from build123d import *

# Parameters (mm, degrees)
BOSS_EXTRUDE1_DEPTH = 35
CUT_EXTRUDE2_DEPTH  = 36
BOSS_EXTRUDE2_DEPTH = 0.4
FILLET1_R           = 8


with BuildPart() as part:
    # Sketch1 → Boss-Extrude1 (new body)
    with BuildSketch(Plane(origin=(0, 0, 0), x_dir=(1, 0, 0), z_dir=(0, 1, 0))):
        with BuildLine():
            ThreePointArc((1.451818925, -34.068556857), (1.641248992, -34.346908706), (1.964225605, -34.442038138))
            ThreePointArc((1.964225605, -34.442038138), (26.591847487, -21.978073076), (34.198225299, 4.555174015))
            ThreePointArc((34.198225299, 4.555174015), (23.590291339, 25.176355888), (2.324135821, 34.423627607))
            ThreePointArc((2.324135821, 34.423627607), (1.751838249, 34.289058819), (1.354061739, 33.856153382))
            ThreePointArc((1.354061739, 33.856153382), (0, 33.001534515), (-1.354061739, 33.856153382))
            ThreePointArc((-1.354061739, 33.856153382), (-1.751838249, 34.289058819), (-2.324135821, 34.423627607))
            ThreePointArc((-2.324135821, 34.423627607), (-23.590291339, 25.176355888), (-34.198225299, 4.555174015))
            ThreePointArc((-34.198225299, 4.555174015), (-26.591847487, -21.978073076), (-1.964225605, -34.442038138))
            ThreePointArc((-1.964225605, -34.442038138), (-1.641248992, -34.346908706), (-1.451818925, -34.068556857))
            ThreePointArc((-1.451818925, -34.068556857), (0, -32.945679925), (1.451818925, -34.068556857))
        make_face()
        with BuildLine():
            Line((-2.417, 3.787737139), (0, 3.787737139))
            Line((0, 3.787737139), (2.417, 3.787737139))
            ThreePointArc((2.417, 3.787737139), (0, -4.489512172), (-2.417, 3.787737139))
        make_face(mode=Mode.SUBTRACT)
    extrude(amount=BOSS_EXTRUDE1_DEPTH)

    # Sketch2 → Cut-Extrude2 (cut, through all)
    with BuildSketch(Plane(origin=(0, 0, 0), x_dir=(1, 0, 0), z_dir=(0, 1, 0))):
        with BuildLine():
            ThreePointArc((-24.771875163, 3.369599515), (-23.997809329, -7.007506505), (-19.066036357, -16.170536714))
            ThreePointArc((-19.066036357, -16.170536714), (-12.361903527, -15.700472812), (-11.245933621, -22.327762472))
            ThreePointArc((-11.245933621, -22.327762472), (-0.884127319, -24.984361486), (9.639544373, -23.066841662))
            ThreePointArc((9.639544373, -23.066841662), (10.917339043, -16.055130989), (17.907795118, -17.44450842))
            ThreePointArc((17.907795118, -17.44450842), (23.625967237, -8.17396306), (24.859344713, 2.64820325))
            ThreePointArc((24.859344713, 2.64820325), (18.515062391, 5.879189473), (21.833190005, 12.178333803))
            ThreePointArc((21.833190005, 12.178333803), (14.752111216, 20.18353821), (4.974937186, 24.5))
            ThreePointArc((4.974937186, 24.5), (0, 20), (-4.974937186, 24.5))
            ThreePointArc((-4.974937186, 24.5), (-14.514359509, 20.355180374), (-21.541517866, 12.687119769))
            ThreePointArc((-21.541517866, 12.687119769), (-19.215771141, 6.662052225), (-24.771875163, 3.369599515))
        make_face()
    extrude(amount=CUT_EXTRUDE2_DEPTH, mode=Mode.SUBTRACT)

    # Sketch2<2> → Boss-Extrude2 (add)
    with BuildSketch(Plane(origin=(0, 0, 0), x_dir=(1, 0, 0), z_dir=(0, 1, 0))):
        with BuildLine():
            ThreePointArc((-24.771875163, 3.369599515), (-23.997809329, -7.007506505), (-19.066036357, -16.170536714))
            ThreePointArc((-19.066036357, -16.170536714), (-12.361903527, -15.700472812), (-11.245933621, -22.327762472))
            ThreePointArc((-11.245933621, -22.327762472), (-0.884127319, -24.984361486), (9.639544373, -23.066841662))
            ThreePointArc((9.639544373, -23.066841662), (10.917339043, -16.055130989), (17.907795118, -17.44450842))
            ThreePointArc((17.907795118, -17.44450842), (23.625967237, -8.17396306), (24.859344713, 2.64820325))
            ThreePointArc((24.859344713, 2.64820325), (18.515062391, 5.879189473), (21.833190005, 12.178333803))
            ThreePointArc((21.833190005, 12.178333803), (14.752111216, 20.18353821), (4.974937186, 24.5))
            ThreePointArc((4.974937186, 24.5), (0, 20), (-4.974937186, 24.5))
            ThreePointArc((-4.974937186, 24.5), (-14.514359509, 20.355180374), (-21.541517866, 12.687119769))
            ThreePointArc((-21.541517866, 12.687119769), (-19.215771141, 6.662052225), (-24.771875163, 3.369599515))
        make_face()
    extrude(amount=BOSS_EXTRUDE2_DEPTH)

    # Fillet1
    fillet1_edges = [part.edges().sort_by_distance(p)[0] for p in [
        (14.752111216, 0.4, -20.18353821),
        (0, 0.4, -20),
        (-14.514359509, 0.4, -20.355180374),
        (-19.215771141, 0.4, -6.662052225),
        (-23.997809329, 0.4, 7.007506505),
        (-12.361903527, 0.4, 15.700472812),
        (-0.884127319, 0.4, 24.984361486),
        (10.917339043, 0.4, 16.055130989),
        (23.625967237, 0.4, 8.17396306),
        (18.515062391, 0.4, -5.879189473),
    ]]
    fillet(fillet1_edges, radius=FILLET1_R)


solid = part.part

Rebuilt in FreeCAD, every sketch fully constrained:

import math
import FreeCAD as App
import Part
import Sketcher
from FreeCAD import Vector
Q = App.Units.Quantity


def edges_at(feature, points):
    """Names of the edges that pass closest to the given points."""
    edges = feature.Shape.Edges
    near = lambda p: min(range(len(edges)), key=lambda i: edges[i].distToShape(Part.Vertex(*p))[0])
    return sorted({f"Edge{near(p) + 1}" for p in points})

doc = App.newDocument("Part")
body = doc.addObject("PartDesign::Body", "Body")

# Sketch on XZ plane
sketch1 = body.newObject("Sketcher::SketchObject", "Sketch")
sketch1.AttachmentSupport = (doc.getObject("XZ_Plane"), [""])
sketch1.MapMode = "FlatFace"
sketch1.addGeometry([
    Part.ArcOfCircle(Part.Circle(Vector(1.9, 33.9, 0), Vector(0, 0, 1), 0.5), math.radians(87), math.radians(165)),  # 0
    Part.ArcOfCircle(Part.Circle(Vector(0, 0, 0), Vector(0, 0, 1), 34.5), math.radians(-8), math.radians(87)),  # 1
    Part.ArcOfCircle(Part.Circle(Vector(0, 0, 0), Vector(0, 0, 1), 34.5), math.radians(-86), math.radians(-8)),  # 2
    Part.ArcOfCircle(Part.Circle(Vector(2.3, -33.4, 0), Vector(0, 0, 1), 1), math.radians(-155), math.radians(-86)),  # 3
    Part.ArcOfCircle(Part.Circle(Vector(0, -34.5, 0), Vector(0, 0, 1), 1.5), math.radians(25), math.radians(155)),  # 4
    Part.ArcOfCircle(Part.Circle(Vector(-2.3, -33.4, 0), Vector(0, 0, 1), 1), math.radians(-94), math.radians(-25)),  # 5
    Part.ArcOfCircle(Part.Circle(Vector(0, 0, 0), Vector(0, 0, 1), 34.5), math.radians(-172), math.radians(-94)),  # 6
    Part.ArcOfCircle(Part.Circle(Vector(0, 0, 0), Vector(0, 0, 1), 34.5), math.radians(93), math.radians(188)),  # 7
    Part.ArcOfCircle(Part.Circle(Vector(-1.9, 33.9, 0), Vector(0, 0, 1), 0.5), math.radians(15), math.radians(93)),  # 8
    Part.ArcOfCircle(Part.Circle(Vector(0, 34.4, 0), Vector(0, 0, 1), 1.5), math.radians(-165), math.radians(-15)),  # 9
    Part.ArcOfCircle(Part.Circle(Vector(0, 0, 0), Vector(0, 0, 1), 4.5), math.radians(-57), math.radians(237)),  # 10
    Part.LineSegment(Vector(-2.4, -3.8, 0), Vector(2.4, -3.8, 0)),  # 11
], False)
sketch1.addConstraint([
    Sketcher.Constraint("Tangent", 0, 1, 1, 2),
    Sketcher.Constraint("Tangent", 1, 1, 2, 2),
    Sketcher.Constraint("Tangent", 2, 1, 3, 2),
    Sketcher.Constraint("Tangent", 3, 1, 4, 1),
    Sketcher.Constraint("Tangent", 4, 2, 5, 2),
    Sketcher.Constraint("Tangent", 5, 1, 6, 2),
    Sketcher.Constraint("Tangent", 6, 1, 7, 2),
    Sketcher.Constraint("Tangent", 7, 1, 8, 2),
    Sketcher.Constraint("Tangent", 8, 1, 9, 1),
    Sketcher.Constraint("Tangent", 9, 2, 0, 2),
    Sketcher.Constraint("Coincident", 10, 1, 11, 2),
    Sketcher.Constraint("Coincident", 11, 1, 10, 2),
    Sketcher.Constraint("Horizontal", 11),
    Sketcher.Constraint("Coincident", 6, 3, 1, 3),
    Sketcher.Constraint("Coincident", 10, 3, 1, 3),
    Sketcher.Constraint("Equal", 1, 2),
    Sketcher.Constraint("Equal", 3, 5),
    Sketcher.Constraint("Equal", 2, 6),
    Sketcher.Constraint("Equal", 6, 7),
    Sketcher.Constraint("Equal", 0, 8),
    Sketcher.Constraint("Equal", 4, 9),
    Sketcher.Constraint("Symmetric", 3, 3, 5, 3, -2),
    Sketcher.Constraint("PointOnObject", 9, 3, -2),
    Sketcher.Constraint("Horizontal", 1, 1, 6, 1),
    Sketcher.Constraint("Radius", 3, Q("1 mm")),
    Sketcher.Constraint("Radius", 0, Q("0.5 mm")),
    Sketcher.Constraint("Radius", 1, Q("34.5 mm")),
    Sketcher.Constraint("Radius", 4, Q("1.5 mm")),
    Sketcher.Constraint("DistanceX", 11, 1, 11, 2, Q("4.834 mm")),
    Sketcher.Constraint("DistanceY", 1, 3, -1, 1, Q("0.002001 mm")),
    Sketcher.Constraint("Radius", 10, Q("4.491513 mm")),
    Sketcher.Constraint("DistanceY", 3, 3, -1, 1, Q("33.425899 mm")),
    Sketcher.Constraint("DistanceX", -1, 1, 0, 3, Q("1.935759 mm")),
    Sketcher.Constraint("DistanceX", -1, 1, 1, 1, Q("34.198225 mm")),
])
pad1 = body.newObject("PartDesign::Pad", "Pad")
pad1.Profile = sketch1
pad1.Length = 35
pad1.Reversed = True

# Sketch on XZ plane
sketch2 = body.newObject("Sketcher::SketchObject", "Sketch001")
sketch2.AttachmentSupport = (doc.getObject("XZ_Plane"), [""])
sketch2.MapMode = "FlatFace"
sketch2.addGeometry([
    Part.ArcOfCircle(Part.Circle(Vector(0, 0, 0), Vector(0, 0, 1), 25), math.radians(140), math.radians(188)),  # 0
    Part.ArcOfCircle(Part.Circle(Vector(-15, 20, 0), Vector(0, 0, 1), 5), math.radians(-136), math.radians(33)),  # 1
    Part.ArcOfCircle(Part.Circle(Vector(0, 0, 0), Vector(0, 0, 1), 25), math.radians(67), math.radians(117)),  # 2
    Part.ArcOfCircle(Part.Circle(Vector(14, 20, 0), Vector(0, 0, 1), 5), math.radians(145), math.radians(327)),  # 3
    Part.ArcOfCircle(Part.Circle(Vector(0, 0, 0), Vector(0, 0, 1), 25), math.radians(-6), math.radians(44)),  # 4
    Part.ArcOfCircle(Part.Circle(Vector(23, -7, 0), Vector(0, 0, 1), 5), math.radians(72), math.radians(253)),  # 5
    Part.ArcOfCircle(Part.Circle(Vector(0, 0, 0), Vector(0, 0, 1), 25), math.radians(-79), math.radians(-29)),  # 6
    Part.ArcOfCircle(Part.Circle(Vector(0, -25, 0), Vector(0, 0, 1), 5), math.radians(6), math.radians(174)),  # 7
    Part.ArcOfCircle(Part.Circle(Vector(0, 0, 0), Vector(0, 0, 1), 25), math.radians(-150), math.radians(-101)),  # 8
    Part.ArcOfCircle(Part.Circle(Vector(-24, -8, 0), Vector(0, 0, 1), 5), math.radians(-61), math.radians(100)),  # 9
], False)
sketch2.addConstraint([
    Sketcher.Constraint("Coincident", 0, 1, 1, 1),
    Sketcher.Constraint("Coincident", 1, 2, 2, 2),
    Sketcher.Constraint("Coincident", 2, 1, 3, 1),
    Sketcher.Constraint("Coincident", 3, 2, 4, 2),
    Sketcher.Constraint("Coincident", 4, 1, 5, 1),
    Sketcher.Constraint("Coincident", 5, 2, 6, 2),
    Sketcher.Constraint("Coincident", 6, 1, 7, 1),
    Sketcher.Constraint("Coincident", 7, 2, 8, 2),
    Sketcher.Constraint("Coincident", 8, 1, 9, 1),
    Sketcher.Constraint("Coincident", 9, 2, 0, 2),
    Sketcher.Constraint("Coincident", 0, 3, -1, 1),
    Sketcher.Constraint("Coincident", 2, 3, -1, 1),
    Sketcher.Constraint("Coincident", 4, 3, -1, 1),
    Sketcher.Constraint("Coincident", 6, 3, -1, 1),
    Sketcher.Constraint("Coincident", 8, 3, -1, 1),
    Sketcher.Constraint("Equal", 0, 2),
    Sketcher.Constraint("Equal", 1, 3),
    Sketcher.Constraint("Equal", 2, 4),
    Sketcher.Constraint("Equal", 3, 5),
    Sketcher.Constraint("Equal", 4, 6),
    Sketcher.Constraint("Equal", 5, 7),
    Sketcher.Constraint("Equal", 6, 8),
    Sketcher.Constraint("Equal", 7, 9),
    Sketcher.Constraint("PointOnObject", 7, 3, -2),
    Sketcher.Constraint("Radius", 0, Q("25 mm")),
    Sketcher.Constraint("Radius", 1, Q("5 mm")),
    Sketcher.Constraint("DistanceY", 7, 3, -1, 1, Q("25 mm")),
    Sketcher.Constraint("DistanceY", 9, 2, -1, 1, Q("3.3696 mm")),
    Sketcher.Constraint("DistanceY", -1, 1, 3, 3, Q("20.189781 mm")),
    Sketcher.Constraint("DistanceX", -1, 1, 5, 3, Q("23.28058 mm")),
    Sketcher.Constraint("DistanceY", 5, 3, -1, 1, Q("7.392411 mm")),
    Sketcher.Constraint("DistanceY", -1, 1, 2, 1, Q("23.066842 mm")),
    Sketcher.Constraint("DistanceY", 8, 1, -1, 1, Q("12.68712 mm")),
    Sketcher.Constraint("DistanceX", 9, 3, 0, 1, Q("4.873871 mm")),
    Sketcher.Constraint("DistanceX", 1, 3, 1, 2, Q("4.20907 mm")),
])
pocket1 = body.newObject("PartDesign::Pocket", "Pocket")
pocket1.Profile = sketch2
pocket1.Type = "ThroughAll"

# Sketch on XZ plane
sketch3 = body.newObject("Sketcher::SketchObject", "Sketch002")
sketch3.AttachmentSupport = (doc.getObject("XZ_Plane"), [""])
sketch3.MapMode = "FlatFace"
sketch3.addGeometry([
    Part.ArcOfCircle(Part.Circle(Vector(0, 0, 0), Vector(0, 0, 1), 25), math.radians(140), math.radians(188)),  # 0
    Part.ArcOfCircle(Part.Circle(Vector(-15, 20, 0), Vector(0, 0, 1), 5), math.radians(-136), math.radians(33)),  # 1
    Part.ArcOfCircle(Part.Circle(Vector(0, 0, 0), Vector(0, 0, 1), 25), math.radians(67), math.radians(117)),  # 2
    Part.ArcOfCircle(Part.Circle(Vector(14, 20, 0), Vector(0, 0, 1), 5), math.radians(145), math.radians(327)),  # 3
    Part.ArcOfCircle(Part.Circle(Vector(0, 0, 0), Vector(0, 0, 1), 25), math.radians(-6), math.radians(44)),  # 4
    Part.ArcOfCircle(Part.Circle(Vector(23, -7, 0), Vector(0, 0, 1), 5), math.radians(72), math.radians(253)),  # 5
    Part.ArcOfCircle(Part.Circle(Vector(0, 0, 0), Vector(0, 0, 1), 25), math.radians(-79), math.radians(-29)),  # 6
    Part.ArcOfCircle(Part.Circle(Vector(0, -25, 0), Vector(0, 0, 1), 5), math.radians(6), math.radians(174)),  # 7
    Part.ArcOfCircle(Part.Circle(Vector(0, 0, 0), Vector(0, 0, 1), 25), math.radians(-150), math.radians(-101)),  # 8
    Part.ArcOfCircle(Part.Circle(Vector(-24, -8, 0), Vector(0, 0, 1), 5), math.radians(-61), math.radians(100)),  # 9
], False)
sketch3.addConstraint([
    Sketcher.Constraint("Coincident", 0, 1, 1, 1),
    Sketcher.Constraint("Coincident", 1, 2, 2, 2),
    Sketcher.Constraint("Coincident", 2, 1, 3, 1),
    Sketcher.Constraint("Coincident", 3, 2, 4, 2),
    Sketcher.Constraint("Coincident", 4, 1, 5, 1),
    Sketcher.Constraint("Coincident", 5, 2, 6, 2),
    Sketcher.Constraint("Coincident", 6, 1, 7, 1),
    Sketcher.Constraint("Coincident", 7, 2, 8, 2),
    Sketcher.Constraint("Coincident", 8, 1, 9, 1),
    Sketcher.Constraint("Coincident", 9, 2, 0, 2),
    Sketcher.Constraint("Coincident", 0, 3, -1, 1),
    Sketcher.Constraint("Coincident", 2, 3, -1, 1),
    Sketcher.Constraint("Coincident", 4, 3, -1, 1),
    Sketcher.Constraint("Coincident", 6, 3, -1, 1),
    Sketcher.Constraint("Coincident", 8, 3, -1, 1),
    Sketcher.Constraint("Equal", 0, 2),
    Sketcher.Constraint("Equal", 1, 3),
    Sketcher.Constraint("Equal", 2, 4),
    Sketcher.Constraint("Equal", 3, 5),
    Sketcher.Constraint("Equal", 4, 6),
    Sketcher.Constraint("Equal", 5, 7),
    Sketcher.Constraint("Equal", 6, 8),
    Sketcher.Constraint("Equal", 7, 9),
    Sketcher.Constraint("PointOnObject", 7, 3, -2),
    Sketcher.Constraint("Radius", 0, Q("25 mm")),
    Sketcher.Constraint("Radius", 1, Q("5 mm")),
    Sketcher.Constraint("DistanceY", 7, 3, -1, 1, Q("25 mm")),
    Sketcher.Constraint("DistanceY", 9, 2, -1, 1, Q("3.3696 mm")),
    Sketcher.Constraint("DistanceY", -1, 1, 3, 3, Q("20.189781 mm")),
    Sketcher.Constraint("DistanceX", -1, 1, 5, 3, Q("23.28058 mm")),
    Sketcher.Constraint("DistanceY", 5, 3, -1, 1, Q("7.392411 mm")),
    Sketcher.Constraint("DistanceY", -1, 1, 2, 1, Q("23.066842 mm")),
    Sketcher.Constraint("DistanceY", 8, 1, -1, 1, Q("12.68712 mm")),
    Sketcher.Constraint("DistanceX", 9, 3, 0, 1, Q("4.873871 mm")),
    Sketcher.Constraint("DistanceX", 1, 3, 1, 2, Q("4.20907 mm")),
])
pad2 = body.newObject("PartDesign::Pad", "Pad001")
pad2.Profile = sketch3
pad2.Length = 0.4
pad2.Reversed = True
doc.recompute()

fillet = body.newObject("PartDesign::Fillet", "Fillet")
fillet.Base = (pad2, edges_at(pad2, [
    (14.752, 0.4, -20.184),
    (0, 0.4, -20),
    (-14.514, 0.4, -20.355),
    (-19.216, 0.4, -6.662),
    (-23.998, 0.4, 7.008),
    (-12.362, 0.4, 15.7),
    (-0.884, 0.4, 24.984),
    (10.917, 0.4, 16.055),
    (23.626, 0.4, 8.174),
    (18.515, 0.4, -5.879),
]))
fillet.Radius = 8

doc.recompute()
